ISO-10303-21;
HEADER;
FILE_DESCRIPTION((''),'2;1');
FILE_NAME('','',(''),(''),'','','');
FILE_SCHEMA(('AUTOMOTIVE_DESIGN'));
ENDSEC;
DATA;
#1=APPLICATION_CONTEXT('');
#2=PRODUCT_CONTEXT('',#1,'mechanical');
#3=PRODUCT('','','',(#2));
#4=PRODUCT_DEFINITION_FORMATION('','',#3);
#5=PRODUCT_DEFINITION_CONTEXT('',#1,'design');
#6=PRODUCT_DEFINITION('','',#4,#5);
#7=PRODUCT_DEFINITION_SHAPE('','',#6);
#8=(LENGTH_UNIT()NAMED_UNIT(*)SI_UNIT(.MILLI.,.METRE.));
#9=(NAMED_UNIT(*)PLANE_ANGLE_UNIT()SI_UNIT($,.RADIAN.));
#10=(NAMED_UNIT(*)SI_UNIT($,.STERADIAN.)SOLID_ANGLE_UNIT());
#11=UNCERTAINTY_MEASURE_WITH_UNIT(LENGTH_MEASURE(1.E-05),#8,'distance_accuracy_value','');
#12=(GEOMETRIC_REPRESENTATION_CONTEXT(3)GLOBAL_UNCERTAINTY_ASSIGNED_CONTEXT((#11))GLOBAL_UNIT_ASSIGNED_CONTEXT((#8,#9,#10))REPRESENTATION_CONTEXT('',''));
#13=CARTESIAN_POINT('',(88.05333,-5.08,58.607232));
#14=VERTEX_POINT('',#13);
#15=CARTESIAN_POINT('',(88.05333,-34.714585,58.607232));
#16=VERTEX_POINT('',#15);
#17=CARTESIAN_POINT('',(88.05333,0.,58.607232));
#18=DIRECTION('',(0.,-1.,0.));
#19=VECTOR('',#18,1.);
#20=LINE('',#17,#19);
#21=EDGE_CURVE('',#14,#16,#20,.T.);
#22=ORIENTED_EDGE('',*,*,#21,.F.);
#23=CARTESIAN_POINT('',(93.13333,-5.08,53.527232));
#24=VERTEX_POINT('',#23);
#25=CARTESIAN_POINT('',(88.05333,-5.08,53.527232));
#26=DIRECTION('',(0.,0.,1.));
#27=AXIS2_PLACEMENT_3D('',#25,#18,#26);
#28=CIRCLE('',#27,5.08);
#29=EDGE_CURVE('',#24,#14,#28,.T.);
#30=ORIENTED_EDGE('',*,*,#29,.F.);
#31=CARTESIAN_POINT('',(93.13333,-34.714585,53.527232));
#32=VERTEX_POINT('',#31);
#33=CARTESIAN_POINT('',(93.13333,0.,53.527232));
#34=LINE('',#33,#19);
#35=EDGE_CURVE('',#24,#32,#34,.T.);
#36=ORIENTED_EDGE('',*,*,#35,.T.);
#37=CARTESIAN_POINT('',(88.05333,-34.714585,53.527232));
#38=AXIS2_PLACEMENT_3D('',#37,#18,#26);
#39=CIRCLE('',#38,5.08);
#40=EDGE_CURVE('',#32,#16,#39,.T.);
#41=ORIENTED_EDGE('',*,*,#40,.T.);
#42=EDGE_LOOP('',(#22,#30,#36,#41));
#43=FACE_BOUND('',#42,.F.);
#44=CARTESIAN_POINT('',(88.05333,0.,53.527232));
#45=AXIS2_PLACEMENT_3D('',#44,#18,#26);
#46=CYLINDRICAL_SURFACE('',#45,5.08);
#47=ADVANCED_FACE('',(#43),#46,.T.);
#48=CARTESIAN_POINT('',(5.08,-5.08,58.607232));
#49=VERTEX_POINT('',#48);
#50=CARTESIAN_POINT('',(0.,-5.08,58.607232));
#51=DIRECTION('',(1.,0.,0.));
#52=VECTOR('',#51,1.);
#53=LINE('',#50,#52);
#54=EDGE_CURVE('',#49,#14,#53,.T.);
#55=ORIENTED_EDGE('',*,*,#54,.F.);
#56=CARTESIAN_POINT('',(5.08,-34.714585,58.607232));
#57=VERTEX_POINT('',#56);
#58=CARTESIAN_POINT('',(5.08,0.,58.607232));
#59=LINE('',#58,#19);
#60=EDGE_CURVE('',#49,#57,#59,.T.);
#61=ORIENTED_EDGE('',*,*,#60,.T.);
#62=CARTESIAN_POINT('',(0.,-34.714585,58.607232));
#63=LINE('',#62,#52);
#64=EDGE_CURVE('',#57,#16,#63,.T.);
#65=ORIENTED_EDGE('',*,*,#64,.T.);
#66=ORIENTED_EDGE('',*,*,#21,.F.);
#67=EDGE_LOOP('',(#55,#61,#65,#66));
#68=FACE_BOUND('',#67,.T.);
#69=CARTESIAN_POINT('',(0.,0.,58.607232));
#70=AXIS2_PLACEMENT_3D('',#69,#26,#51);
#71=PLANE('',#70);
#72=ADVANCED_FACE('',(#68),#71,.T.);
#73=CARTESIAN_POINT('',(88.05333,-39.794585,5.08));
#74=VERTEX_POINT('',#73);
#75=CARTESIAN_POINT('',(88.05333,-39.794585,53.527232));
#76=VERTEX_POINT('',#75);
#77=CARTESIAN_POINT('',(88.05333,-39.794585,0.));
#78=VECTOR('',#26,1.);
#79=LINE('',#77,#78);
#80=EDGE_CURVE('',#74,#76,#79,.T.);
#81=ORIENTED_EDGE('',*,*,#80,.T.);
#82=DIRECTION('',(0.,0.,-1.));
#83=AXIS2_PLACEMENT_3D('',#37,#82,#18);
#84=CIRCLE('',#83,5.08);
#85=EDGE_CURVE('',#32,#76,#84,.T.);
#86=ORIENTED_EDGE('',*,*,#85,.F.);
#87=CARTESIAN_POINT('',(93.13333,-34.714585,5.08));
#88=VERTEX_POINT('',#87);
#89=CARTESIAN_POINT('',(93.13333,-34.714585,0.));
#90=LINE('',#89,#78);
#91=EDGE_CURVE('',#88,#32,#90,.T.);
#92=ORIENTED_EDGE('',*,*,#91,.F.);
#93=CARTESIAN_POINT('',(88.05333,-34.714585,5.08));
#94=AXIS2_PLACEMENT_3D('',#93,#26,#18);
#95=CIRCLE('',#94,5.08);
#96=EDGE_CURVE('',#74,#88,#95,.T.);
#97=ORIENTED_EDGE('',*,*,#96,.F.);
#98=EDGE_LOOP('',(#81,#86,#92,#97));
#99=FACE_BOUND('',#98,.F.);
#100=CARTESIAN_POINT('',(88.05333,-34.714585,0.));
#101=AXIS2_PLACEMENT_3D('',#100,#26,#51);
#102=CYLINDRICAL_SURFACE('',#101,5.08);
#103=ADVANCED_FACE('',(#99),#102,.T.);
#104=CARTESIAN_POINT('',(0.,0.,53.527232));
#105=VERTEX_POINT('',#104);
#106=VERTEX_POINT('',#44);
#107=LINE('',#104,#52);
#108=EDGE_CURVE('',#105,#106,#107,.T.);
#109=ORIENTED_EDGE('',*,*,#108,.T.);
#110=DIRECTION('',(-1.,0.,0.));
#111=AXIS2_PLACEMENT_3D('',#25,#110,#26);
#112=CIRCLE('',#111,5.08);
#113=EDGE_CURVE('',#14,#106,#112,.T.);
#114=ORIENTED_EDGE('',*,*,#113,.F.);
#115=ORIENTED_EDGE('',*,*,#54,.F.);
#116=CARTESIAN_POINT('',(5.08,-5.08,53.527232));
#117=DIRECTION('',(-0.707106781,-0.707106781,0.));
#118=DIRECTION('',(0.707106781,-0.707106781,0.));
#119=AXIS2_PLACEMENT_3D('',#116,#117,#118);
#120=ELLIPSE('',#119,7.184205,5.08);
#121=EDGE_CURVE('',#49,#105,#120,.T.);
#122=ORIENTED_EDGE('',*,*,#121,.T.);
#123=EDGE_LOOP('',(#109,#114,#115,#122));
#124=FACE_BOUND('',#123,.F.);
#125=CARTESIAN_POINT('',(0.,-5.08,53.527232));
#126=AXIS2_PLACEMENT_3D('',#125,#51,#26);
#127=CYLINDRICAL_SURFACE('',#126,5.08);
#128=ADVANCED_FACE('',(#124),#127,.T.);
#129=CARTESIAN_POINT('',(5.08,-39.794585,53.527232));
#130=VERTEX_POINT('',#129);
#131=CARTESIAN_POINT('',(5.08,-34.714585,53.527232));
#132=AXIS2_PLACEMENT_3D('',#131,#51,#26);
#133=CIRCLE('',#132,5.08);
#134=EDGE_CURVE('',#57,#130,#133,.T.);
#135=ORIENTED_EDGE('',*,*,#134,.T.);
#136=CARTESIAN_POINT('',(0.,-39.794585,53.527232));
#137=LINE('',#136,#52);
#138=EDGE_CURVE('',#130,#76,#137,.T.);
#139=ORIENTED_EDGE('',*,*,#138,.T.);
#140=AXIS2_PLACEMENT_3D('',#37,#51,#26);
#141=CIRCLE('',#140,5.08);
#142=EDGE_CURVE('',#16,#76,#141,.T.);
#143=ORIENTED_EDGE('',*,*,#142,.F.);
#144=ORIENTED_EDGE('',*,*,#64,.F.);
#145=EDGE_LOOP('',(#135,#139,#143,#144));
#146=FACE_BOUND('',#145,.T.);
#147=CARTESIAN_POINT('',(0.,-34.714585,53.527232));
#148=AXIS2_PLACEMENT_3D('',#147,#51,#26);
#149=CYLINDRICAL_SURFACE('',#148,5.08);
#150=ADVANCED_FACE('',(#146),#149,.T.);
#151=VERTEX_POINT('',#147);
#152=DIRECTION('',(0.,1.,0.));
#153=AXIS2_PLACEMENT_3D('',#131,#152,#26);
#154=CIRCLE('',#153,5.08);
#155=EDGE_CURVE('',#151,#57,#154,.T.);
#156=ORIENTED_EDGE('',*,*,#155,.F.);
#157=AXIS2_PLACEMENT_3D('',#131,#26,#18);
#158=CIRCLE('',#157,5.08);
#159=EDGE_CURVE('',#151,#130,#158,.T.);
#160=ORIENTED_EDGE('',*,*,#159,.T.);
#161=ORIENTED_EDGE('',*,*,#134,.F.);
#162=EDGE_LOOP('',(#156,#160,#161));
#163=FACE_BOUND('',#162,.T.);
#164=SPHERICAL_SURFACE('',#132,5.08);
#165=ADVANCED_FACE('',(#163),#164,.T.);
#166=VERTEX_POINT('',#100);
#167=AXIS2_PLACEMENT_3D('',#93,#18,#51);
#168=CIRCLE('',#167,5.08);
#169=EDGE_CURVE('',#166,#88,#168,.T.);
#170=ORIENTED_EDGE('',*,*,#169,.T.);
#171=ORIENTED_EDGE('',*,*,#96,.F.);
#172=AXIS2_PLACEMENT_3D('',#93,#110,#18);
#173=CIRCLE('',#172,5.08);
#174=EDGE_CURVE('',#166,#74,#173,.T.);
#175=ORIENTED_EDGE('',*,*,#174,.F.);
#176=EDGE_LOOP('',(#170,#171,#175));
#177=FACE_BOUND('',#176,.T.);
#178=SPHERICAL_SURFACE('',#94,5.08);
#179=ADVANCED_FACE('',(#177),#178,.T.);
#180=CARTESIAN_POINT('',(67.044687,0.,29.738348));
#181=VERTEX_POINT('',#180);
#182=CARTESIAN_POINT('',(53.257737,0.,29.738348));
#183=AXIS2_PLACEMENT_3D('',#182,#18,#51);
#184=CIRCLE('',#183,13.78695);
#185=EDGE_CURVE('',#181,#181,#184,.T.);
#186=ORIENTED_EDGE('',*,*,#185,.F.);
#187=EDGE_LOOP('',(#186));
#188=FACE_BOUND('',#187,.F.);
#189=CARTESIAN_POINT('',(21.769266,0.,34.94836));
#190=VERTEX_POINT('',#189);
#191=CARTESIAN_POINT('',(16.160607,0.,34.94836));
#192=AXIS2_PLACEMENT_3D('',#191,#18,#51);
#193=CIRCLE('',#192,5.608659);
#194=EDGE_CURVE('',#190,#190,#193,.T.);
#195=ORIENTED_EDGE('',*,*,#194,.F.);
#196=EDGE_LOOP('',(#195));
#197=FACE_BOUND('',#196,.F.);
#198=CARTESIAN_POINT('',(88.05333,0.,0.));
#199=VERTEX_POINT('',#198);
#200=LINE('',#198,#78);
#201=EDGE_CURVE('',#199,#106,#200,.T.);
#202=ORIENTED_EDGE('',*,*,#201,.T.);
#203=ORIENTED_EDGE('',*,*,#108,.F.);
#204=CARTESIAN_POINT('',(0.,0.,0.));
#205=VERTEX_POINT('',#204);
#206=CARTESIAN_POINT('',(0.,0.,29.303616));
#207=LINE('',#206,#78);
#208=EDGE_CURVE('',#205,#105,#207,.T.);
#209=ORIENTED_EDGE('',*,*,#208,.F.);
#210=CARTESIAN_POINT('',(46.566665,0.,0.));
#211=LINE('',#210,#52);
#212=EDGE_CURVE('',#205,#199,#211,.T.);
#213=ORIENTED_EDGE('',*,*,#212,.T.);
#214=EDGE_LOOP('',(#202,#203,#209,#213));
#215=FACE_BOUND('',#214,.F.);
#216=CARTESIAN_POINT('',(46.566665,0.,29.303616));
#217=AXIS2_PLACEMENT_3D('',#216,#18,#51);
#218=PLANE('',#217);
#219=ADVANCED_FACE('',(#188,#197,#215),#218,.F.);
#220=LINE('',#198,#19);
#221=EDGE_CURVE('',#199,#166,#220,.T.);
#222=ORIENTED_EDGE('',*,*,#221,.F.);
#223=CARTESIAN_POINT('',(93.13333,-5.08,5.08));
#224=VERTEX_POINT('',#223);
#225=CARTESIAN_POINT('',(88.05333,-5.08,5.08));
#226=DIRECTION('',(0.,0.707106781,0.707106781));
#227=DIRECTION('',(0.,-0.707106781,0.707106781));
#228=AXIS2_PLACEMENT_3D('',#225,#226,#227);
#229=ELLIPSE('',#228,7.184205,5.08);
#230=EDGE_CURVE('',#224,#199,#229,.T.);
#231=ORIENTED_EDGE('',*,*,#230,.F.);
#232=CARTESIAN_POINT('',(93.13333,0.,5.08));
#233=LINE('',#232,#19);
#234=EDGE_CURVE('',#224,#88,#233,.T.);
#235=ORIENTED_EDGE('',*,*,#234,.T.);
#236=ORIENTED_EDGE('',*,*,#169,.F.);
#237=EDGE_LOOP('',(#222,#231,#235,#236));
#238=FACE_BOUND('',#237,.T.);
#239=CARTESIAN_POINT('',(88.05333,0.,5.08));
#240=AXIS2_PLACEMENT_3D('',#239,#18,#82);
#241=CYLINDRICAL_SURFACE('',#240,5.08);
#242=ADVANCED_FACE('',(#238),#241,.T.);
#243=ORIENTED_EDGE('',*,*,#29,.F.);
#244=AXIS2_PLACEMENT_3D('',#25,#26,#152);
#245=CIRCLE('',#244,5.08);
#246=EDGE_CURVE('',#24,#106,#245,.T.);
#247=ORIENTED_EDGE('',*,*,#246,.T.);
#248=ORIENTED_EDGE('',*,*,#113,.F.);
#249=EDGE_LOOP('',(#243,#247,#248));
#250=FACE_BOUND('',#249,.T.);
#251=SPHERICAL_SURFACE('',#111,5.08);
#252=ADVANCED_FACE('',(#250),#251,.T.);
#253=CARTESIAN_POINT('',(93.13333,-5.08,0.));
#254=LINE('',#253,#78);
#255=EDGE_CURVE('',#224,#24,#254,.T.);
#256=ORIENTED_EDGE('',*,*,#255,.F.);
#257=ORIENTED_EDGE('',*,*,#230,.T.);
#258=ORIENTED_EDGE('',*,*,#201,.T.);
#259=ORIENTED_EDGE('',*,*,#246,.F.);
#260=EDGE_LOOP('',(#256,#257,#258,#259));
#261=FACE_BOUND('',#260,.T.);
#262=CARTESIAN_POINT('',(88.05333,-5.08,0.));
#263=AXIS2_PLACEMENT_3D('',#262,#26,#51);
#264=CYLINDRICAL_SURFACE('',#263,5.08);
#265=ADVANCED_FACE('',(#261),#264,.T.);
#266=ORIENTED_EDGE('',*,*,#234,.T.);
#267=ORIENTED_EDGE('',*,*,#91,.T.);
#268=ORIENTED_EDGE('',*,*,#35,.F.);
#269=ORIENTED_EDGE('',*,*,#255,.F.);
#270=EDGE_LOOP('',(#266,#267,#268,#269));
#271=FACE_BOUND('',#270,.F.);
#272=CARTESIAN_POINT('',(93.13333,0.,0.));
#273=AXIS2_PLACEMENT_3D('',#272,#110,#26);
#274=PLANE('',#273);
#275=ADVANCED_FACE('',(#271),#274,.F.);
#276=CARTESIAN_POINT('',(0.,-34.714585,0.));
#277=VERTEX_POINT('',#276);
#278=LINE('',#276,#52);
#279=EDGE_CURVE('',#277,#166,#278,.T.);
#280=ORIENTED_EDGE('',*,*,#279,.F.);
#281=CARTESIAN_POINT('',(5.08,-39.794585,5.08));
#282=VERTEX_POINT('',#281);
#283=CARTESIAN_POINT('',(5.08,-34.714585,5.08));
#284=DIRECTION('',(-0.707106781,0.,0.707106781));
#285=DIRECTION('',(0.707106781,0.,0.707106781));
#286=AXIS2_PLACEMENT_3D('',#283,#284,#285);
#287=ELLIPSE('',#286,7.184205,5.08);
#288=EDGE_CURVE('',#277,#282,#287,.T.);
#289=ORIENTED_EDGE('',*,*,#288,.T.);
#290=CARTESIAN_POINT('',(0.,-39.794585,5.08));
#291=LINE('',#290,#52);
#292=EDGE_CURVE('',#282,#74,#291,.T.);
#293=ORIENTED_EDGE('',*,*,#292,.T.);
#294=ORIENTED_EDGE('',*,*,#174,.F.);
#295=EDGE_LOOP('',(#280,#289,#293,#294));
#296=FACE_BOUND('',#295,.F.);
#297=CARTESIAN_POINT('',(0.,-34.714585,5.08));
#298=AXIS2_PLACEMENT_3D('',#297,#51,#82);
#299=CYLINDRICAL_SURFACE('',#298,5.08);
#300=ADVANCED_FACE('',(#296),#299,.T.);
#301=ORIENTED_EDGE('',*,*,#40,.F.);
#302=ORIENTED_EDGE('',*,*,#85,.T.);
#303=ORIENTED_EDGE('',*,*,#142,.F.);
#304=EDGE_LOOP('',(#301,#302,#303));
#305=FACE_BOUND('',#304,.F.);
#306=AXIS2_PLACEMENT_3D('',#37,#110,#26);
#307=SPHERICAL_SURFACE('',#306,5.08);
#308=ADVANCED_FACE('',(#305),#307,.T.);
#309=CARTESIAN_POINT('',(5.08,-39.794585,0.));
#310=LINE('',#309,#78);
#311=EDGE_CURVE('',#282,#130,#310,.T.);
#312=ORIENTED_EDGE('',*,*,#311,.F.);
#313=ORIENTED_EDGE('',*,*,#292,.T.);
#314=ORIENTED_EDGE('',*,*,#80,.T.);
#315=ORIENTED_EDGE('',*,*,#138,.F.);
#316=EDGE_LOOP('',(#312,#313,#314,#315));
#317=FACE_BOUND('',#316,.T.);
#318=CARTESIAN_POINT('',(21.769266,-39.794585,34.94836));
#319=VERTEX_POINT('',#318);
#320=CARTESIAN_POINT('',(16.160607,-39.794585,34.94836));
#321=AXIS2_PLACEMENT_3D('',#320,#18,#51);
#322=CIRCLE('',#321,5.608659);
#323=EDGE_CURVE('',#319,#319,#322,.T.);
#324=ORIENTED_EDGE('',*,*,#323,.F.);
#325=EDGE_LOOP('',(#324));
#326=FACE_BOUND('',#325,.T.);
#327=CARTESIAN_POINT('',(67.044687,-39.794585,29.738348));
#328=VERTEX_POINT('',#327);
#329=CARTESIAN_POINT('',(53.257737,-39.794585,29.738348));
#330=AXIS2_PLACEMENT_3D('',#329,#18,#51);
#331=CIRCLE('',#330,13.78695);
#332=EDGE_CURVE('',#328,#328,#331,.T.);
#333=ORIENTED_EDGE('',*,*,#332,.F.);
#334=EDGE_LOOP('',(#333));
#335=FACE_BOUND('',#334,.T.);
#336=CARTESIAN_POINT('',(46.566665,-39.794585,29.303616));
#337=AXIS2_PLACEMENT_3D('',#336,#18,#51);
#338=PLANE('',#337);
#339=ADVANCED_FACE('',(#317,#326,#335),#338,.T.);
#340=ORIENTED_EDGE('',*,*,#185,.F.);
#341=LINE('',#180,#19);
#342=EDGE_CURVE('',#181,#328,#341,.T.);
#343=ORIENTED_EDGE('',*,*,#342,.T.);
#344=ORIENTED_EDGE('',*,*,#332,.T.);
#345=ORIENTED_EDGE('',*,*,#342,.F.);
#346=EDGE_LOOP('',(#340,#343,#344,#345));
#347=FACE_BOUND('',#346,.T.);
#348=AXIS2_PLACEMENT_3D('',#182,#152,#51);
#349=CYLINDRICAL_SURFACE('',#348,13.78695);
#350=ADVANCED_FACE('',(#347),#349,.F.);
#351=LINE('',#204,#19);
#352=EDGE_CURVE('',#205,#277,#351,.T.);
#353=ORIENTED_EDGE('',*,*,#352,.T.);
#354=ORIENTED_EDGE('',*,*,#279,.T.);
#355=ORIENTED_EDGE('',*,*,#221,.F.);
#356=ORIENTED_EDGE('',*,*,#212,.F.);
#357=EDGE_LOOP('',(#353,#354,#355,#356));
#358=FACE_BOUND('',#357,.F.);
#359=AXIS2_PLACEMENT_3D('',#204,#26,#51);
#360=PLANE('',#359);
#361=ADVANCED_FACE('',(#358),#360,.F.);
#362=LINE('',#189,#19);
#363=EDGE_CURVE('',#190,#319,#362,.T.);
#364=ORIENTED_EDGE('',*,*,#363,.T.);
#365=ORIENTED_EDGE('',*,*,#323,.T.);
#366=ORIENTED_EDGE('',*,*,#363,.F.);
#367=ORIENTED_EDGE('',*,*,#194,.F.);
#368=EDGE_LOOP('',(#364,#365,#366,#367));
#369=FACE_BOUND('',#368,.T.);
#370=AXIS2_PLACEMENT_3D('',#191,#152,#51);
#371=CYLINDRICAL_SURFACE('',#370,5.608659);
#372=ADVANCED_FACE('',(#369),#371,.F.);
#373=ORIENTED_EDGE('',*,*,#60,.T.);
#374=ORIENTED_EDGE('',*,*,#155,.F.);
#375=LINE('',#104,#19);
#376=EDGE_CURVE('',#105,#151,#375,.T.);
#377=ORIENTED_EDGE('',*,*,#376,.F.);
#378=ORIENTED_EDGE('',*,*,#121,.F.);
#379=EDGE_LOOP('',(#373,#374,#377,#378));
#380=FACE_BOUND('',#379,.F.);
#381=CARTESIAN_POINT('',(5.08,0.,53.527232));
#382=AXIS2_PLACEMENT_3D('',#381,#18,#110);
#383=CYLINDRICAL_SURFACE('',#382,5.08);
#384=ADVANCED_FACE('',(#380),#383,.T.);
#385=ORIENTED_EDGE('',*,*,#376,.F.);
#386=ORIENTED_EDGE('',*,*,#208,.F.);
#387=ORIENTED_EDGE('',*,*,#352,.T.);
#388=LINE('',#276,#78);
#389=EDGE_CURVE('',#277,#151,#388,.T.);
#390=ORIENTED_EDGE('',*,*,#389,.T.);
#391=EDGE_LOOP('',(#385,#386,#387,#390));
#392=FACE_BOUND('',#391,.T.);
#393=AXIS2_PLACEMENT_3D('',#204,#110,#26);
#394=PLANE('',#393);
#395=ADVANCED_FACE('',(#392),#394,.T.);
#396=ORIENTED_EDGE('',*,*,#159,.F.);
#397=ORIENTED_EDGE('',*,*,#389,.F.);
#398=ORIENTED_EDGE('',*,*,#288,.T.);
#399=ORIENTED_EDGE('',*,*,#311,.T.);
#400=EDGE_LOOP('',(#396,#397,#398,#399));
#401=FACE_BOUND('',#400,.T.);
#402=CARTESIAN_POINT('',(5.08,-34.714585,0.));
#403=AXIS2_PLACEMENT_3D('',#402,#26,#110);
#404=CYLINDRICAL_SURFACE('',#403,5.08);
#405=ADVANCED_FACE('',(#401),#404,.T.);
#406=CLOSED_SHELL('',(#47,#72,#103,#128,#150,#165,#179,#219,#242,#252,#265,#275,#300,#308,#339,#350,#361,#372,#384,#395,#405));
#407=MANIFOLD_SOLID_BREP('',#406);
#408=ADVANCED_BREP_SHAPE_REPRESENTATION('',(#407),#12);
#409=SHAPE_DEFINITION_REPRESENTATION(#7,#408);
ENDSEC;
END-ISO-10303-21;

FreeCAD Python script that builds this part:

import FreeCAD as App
import Part
import Sketcher

V = App.Vector
Q = App.Units.Quantity


def edges_at(feature, points):
    """Names of the edges that pass closest to the given points."""
    edges = feature.Shape.Edges
    near = lambda p: min(range(len(edges)), key=lambda i: edges[i].distToShape(Part.Vertex(*p))[0])
    return sorted({f"Edge{near(p) + 1}" for p in points})


def add_polygon(sketch, points):
    """Adds a closed chain of lines whose ends are joined by coincident constraints."""
    first, n = sketch.GeometryCount, len(points)
    for a, b in zip(points, points[1:] + points[:1]):
        sketch.addGeometry(Part.LineSegment(App.Vector(*a, 0), App.Vector(*b, 0)), False)
    for i in range(n):
        sketch.addConstraint(Sketcher.Constraint("Coincident", first + i, 2, first + (i + 1) % n, 1))

doc = App.newDocument("Part")
body = doc.addObject("PartDesign::Body", "Body")

sketch1 = body.newObject("Sketcher::SketchObject", "Sketch")
sketch1.AttachmentSupport = (doc.getObject("XZ_Plane"), [""])
sketch1.MapMode = "FlatFace"
add_polygon(sketch1, [(0, 58.607232), (0, 0), (93.13333, 0), (93.13333, 58.607232)])
sketch1.addGeometry(Part.Circle(V(16.160607, 34.94836, 0), V(0, 0, 1), 5.608659), False)
sketch1.addGeometry(Part.Circle(V(53.257737, 29.738348, 0), V(0, 0, 1), 13.78695), False)
sketch1.addConstraint([
    Sketcher.Constraint("Vertical", 0),
    Sketcher.Constraint("Horizontal", 1),
    Sketcher.Constraint("Vertical", 2),
    Sketcher.Constraint("Horizontal", 3),
    Sketcher.Constraint("Coincident", 0, 2, -1, 1),
    Sketcher.Constraint("Diameter", 5, Q("27.5739 mm")),
    Sketcher.Constraint("Diameter", 4, Q("11.217318 mm")),
    Sketcher.Constraint("DistanceX", 1, 1, 1, 2, Q("93.13333 mm")),
    Sketcher.Constraint("DistanceY", 0, 2, 0, 1, Q("58.607232 mm")),
    Sketcher.Constraint("DistanceY", -1, 1, 4, 3, Q("34.94836 mm")),
    Sketcher.Constraint("DistanceX", 4, 3, 5, 3, Q("37.09713 mm")),
    Sketcher.Constraint("DistanceX", -1, 1, 4, 3, Q("16.160607 mm")),
    Sketcher.Constraint("DistanceY", -1, 1, 5, 3, Q("29.738348 mm")),
])
pad1 = body.newObject("PartDesign::Pad", "Pad")
pad1.Profile = sketch1
pad1.Length = 39.794585
doc.recompute()

fillet = body.newObject("PartDesign::Fillet", "Fillet")
fillet.Base = (pad1, edges_at(pad1, [
    (46.567, -39.795, 58.607),
    (46.567, 0, 58.607),
    (0, -19.897, 58.607),
    (93.133, -19.897, 58.607),
    (93.133, -39.795, 29.304),
    (0, -39.795, 29.304),
    (46.567, -39.795, 0),
    (93.133, 0, 29.304),
    (93.133, -19.897, 0),
]))
fillet.Radius = Q("0.2 in")

doc.recompute()
